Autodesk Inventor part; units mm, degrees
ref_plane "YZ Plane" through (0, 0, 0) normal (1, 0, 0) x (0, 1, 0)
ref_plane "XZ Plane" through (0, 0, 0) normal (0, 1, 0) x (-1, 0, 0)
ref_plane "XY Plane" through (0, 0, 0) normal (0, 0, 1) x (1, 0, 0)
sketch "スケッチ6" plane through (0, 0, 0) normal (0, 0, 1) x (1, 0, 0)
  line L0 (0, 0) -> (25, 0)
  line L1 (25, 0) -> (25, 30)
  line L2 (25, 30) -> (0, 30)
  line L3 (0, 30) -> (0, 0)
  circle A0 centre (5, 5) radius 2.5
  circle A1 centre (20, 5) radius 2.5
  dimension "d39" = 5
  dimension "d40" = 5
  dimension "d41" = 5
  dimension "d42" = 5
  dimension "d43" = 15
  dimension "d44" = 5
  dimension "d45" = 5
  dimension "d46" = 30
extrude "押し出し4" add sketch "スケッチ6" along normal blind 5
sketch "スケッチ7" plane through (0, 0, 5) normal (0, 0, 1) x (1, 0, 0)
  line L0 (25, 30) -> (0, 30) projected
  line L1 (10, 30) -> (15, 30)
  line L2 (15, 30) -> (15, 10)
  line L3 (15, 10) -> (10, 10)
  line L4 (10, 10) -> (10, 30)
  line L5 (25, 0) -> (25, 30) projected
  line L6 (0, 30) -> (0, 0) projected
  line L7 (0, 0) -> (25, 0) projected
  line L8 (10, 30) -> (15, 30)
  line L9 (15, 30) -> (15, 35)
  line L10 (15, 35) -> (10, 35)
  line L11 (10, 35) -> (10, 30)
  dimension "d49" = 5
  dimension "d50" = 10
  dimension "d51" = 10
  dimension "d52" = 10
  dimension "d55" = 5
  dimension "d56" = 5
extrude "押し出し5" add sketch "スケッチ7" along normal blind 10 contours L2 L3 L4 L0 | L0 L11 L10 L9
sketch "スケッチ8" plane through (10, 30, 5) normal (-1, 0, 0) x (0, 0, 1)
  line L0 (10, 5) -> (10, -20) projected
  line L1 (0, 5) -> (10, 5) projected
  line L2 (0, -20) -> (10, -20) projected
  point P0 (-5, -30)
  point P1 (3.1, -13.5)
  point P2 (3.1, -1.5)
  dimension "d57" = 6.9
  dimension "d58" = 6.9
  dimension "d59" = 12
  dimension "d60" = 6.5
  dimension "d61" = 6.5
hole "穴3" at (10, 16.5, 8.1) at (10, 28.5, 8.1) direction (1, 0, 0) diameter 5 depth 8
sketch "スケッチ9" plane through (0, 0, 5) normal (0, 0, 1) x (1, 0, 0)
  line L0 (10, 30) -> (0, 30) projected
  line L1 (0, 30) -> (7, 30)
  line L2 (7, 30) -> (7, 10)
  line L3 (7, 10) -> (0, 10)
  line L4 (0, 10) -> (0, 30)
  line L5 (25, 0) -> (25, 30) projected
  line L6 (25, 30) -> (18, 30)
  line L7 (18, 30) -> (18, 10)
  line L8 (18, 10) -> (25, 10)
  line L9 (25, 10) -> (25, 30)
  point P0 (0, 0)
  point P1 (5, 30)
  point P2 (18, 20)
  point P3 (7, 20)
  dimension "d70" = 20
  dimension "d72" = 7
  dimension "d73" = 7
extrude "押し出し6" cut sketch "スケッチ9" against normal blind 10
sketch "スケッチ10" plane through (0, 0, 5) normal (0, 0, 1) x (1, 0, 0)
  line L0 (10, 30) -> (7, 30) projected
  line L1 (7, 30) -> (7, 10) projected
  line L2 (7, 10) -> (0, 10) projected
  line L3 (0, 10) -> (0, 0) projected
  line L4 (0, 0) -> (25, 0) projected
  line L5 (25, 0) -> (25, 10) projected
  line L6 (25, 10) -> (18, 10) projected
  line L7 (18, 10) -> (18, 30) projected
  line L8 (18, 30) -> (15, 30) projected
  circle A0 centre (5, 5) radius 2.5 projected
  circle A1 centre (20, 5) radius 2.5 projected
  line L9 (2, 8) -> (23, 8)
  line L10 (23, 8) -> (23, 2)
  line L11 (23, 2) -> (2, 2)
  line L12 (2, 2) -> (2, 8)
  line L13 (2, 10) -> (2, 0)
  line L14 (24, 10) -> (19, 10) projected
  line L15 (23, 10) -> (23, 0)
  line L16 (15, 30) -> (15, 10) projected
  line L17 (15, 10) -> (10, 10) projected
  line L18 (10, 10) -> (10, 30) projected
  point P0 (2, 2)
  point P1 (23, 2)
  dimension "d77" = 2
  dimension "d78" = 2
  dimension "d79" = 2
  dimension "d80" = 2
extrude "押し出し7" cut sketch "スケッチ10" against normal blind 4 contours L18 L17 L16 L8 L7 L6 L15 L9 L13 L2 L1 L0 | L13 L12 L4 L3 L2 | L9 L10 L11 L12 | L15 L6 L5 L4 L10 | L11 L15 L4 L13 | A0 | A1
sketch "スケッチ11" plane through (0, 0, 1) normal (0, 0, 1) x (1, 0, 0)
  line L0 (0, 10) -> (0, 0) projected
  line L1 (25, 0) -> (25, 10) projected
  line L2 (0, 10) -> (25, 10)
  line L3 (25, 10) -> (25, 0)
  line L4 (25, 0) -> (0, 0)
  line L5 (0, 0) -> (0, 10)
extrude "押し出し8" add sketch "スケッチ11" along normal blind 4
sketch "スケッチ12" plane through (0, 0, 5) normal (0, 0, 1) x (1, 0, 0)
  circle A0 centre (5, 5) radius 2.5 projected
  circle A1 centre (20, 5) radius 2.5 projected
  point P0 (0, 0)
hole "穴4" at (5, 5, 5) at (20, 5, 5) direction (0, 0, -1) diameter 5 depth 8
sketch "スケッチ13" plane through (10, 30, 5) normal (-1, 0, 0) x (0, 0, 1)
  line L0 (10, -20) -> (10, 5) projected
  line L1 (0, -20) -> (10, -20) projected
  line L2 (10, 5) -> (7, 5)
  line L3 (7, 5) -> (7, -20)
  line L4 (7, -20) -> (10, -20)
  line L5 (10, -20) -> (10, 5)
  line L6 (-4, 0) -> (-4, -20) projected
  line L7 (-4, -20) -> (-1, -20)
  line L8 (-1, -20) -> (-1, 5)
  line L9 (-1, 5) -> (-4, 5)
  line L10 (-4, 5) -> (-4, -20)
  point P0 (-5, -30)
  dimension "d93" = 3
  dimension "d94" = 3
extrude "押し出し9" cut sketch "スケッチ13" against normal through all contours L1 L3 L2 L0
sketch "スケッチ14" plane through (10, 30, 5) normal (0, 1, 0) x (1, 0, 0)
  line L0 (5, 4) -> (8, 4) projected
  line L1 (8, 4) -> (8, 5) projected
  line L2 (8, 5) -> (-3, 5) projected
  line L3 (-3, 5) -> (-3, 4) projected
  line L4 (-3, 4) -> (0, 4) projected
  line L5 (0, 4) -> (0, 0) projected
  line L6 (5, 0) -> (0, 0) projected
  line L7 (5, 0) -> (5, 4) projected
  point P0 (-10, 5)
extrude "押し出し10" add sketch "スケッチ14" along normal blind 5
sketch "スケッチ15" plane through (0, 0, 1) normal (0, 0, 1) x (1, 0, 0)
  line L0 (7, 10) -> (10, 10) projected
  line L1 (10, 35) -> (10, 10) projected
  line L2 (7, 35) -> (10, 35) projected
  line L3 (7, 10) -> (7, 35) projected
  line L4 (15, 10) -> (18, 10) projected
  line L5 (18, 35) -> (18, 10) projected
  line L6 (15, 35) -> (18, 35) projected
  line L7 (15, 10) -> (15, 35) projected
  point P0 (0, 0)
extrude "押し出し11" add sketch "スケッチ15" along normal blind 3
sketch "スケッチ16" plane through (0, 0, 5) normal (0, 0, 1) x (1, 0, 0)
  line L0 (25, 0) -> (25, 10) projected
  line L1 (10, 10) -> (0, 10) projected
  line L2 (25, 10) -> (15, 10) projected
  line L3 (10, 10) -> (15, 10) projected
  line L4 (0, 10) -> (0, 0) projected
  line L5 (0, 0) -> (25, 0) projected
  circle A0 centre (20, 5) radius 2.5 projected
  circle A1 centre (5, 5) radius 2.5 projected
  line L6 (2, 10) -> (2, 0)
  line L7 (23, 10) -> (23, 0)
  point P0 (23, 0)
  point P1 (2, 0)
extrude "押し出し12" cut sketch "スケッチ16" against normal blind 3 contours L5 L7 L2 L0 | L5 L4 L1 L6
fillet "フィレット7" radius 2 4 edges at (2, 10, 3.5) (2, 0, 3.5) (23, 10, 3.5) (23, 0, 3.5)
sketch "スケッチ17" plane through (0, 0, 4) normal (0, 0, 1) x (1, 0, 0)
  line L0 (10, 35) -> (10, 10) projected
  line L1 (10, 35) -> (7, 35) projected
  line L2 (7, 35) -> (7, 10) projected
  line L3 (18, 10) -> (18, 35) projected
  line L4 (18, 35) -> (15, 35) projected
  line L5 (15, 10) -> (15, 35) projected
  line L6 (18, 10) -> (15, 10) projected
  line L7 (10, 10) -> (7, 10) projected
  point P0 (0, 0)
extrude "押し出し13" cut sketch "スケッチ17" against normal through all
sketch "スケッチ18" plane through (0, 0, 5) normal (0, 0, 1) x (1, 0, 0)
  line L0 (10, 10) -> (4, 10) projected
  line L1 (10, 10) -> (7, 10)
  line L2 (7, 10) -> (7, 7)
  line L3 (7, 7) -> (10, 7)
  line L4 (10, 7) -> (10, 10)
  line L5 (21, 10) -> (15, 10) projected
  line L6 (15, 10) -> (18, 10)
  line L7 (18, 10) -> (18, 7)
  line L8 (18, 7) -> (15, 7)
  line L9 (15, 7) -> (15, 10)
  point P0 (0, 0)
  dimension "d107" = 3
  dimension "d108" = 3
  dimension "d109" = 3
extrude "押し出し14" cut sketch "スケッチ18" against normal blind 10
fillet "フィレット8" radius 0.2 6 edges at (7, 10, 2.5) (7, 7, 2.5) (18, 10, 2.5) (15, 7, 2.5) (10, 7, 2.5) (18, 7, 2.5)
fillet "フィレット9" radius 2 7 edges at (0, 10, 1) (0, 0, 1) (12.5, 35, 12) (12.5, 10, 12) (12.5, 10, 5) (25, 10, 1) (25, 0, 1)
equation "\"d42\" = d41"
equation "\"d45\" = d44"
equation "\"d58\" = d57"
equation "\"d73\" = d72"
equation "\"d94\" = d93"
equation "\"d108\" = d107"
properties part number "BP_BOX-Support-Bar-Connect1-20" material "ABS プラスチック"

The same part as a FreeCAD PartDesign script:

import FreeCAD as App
import Part
import Sketcher
from FreeCAD import Vector
Q = App.Units.Quantity


def edges_at(feature, points):
    """Names of the edges that pass closest to the given points."""
    edges = feature.Shape.Edges
    near = lambda p: min(range(len(edges)), key=lambda i: edges[i].distToShape(Part.Vertex(*p))[0])
    return sorted({f"Edge{near(p) + 1}" for p in points})

doc = App.newDocument("Part")
params = doc.addObject("Spreadsheet::Sheet", "Params")
for row, (alias, value) in enumerate([
    ("sketch1_diameter", "5 mm"),
    ("sketch1_height", "30 mm"),
    ("pad1_length", "5 mm"),
    ("sketch2_width", "5 mm"),
    ("sketch2_height", "25 mm"),
    ("pad2_length", "10 mm"),
    ("sketch3_diameter", "5 mm"),
    ("hole_diameter", "5 mm"),
    ("hole_depth", "8 mm"),
    ("sketch4_width", "7 mm"),
    ("sketch4_height", "20 mm"),
    ("pocket1_length", "10 mm"),
    ("sketch5_width", "3 mm"),
    ("sketch5_width2", "7 mm"),
    ("sketch5_width3", "25 mm"),
    ("sketch5_height", "20 mm"),
    ("sketch5_height2", "10 mm"),
    ("pocket2_length", "4 mm"),
    ("sketch6_width", "25 mm"),
    ("sketch6_height", "10 mm"),
    ("pad3_length", "4 mm"),
    ("sketch7_diameter", "5 mm"),
    ("hole2_diameter", "5 mm"),
    ("hole2_depth", "8 mm"),
    ("sketch8_height", "3 mm"),
    ("sketch8_width", "25 mm"),
    ("sketch9_width", "3 mm"),
    ("sketch9_width2", "11 mm"),
    ("sketch9_height", "4 mm"),
    ("sketch9_height2", "1 mm"),
    ("pad4_length", "5 mm"),
    ("sketch10_width", "3 mm"),
    ("sketch10_height", "25 mm"),
    ("pad5_length", "3 mm"),
    ("sketch11_width", "2 mm"),
    ("sketch11_height", "10 mm"),
    ("pocket4_length", "3 mm"),
    ("fillet_radius", "2 mm"),
    ("sketch12_width", "3 mm"),
    ("sketch12_height", "25 mm"),
    ("sketch13_width", "3 mm"),
    ("pocket6_length", "10 mm"),
    ("fillet2_radius", "0.2 mm"),
    ("fillet3_radius", "2 mm"),
], start=1):
    params.set(f"A{row}", alias)
    params.set(f"B{row}", "=" + value)
    params.setAlias(f"B{row}", alias)

body = doc.addObject("PartDesign::Body", "Body")

# Sketch on XY plane
sketch1 = doc.addObject("Sketcher::SketchObject", "Sketch")
body.addObject(sketch1)
sketch1.AttachmentSupport = (doc.XY_Plane, [""])
sketch1.MapMode = "FlatFace"
sketch1.addGeometry(Part.LineSegment(Vector(0, 30, 0), Vector(0, 0, 0)), False)
sketch1.addGeometry(Part.LineSegment(Vector(0, 0, 0), Vector(25, 0, 0)), False)
sketch1.addGeometry(Part.LineSegment(Vector(25, 0, 0), Vector(25, 30, 0)), False)
sketch1.addGeometry(Part.LineSegment(Vector(25, 30, 0), Vector(0, 30, 0)), False)
sketch1.addGeometry(Part.Circle(Vector(5, 5, 0), Vector(0, 0, 1), 2.5), False)
sketch1.addGeometry(Part.Circle(Vector(20, 5, 0), Vector(0, 0, 1), 2.5), False)
sketch1.addConstraint(Sketcher.Constraint("Coincident", 0, 2, 1, 1))
sketch1.addConstraint(Sketcher.Constraint("Coincident", 1, 2, 2, 1))
sketch1.addConstraint(Sketcher.Constraint("Coincident", 2, 2, 3, 1))
sketch1.addConstraint(Sketcher.Constraint("Coincident", 3, 2, 0, 1))
sketch1.addConstraint(Sketcher.Constraint("Vertical", 0))
sketch1.addConstraint(Sketcher.Constraint("Horizontal", 1))
sketch1.addConstraint(Sketcher.Constraint("Vertical", 2))
sketch1.addConstraint(Sketcher.Constraint("Horizontal", 3))
sketch1.addConstraint(Sketcher.Constraint("Coincident", 0, 2, -1, 1))
sketch1.addConstraint(Sketcher.Constraint("Equal", 4, 5))
sketch1.addConstraint(Sketcher.Constraint("Horizontal", 4, 3, 5, 3))
sketch1.addConstraint(Sketcher.Constraint("Diameter", 4, Q("5 mm")))
sketch1.addConstraint(Sketcher.Constraint("DistanceY", 0, 2, 0, 1, Q("30 mm")))
sketch1.addConstraint(Sketcher.Constraint("DistanceX", -1, 1, 4, 3, Q("5 mm")))
sketch1.addConstraint(Sketcher.Constraint("DistanceY", -1, 1, 4, 3, Q("5 mm")))
sketch1.addConstraint(Sketcher.Constraint("DistanceX", 4, 3, 5, 3, Q("15 mm")))
sketch1.addConstraint(Sketcher.Constraint("DistanceX", 5, 3, 1, 2, Q("5 mm")))
sketch1.setExpression("Constraints[11]", "Params.sketch1_diameter")
sketch1.setExpression("Constraints[12]", "Params.sketch1_height")
pad1 = doc.addObject("PartDesign::Pad", "Pad")
body.addObject(pad1)
pad1.Profile = sketch1
pad1.setExpression("Length", "Params.pad1_length")

# Sketch on XY plane
sketch2 = doc.addObject("Sketcher::SketchObject", "Sketch001")
body.addObject(sketch2)
sketch2.AttachmentSupport = (doc.XY_Plane, [""])
sketch2.MapMode = "FlatFace"
sketch2.AttachmentOffset = App.Placement(Vector(0, 0, 5), App.Rotation())
sketch2.addGeometry(Part.LineSegment(Vector(15, 10, 0), Vector(15, 35, 0)), False)
sketch2.addGeometry(Part.LineSegment(Vector(15, 35, 0), Vector(10, 35, 0)), False)
sketch2.addGeometry(Part.LineSegment(Vector(10, 35, 0), Vector(10, 10, 0)), False)
sketch2.addGeometry(Part.LineSegment(Vector(10, 10, 0), Vector(15, 10, 0)), False)
sketch2.addConstraint(Sketcher.Constraint("Coincident", 0, 2, 1, 1))
sketch2.addConstraint(Sketcher.Constraint("Coincident", 1, 2, 2, 1))
sketch2.addConstraint(Sketcher.Constraint("Coincident", 2, 2, 3, 1))
sketch2.addConstraint(Sketcher.Constraint("Coincident", 3, 2, 0, 1))
sketch2.addConstraint(Sketcher.Constraint("Vertical", 0))
sketch2.addConstraint(Sketcher.Constraint("Horizontal", 1))
sketch2.addConstraint(Sketcher.Constraint("Vertical", 2))
sketch2.addConstraint(Sketcher.Constraint("Horizontal", 3))
sketch2.addConstraint(Sketcher.Constraint("DistanceX", 1, 2, 1, 1, Q("5 mm")))
sketch2.addConstraint(Sketcher.Constraint("DistanceX", -1, 1, 1, 2, Q("10 mm")))
sketch2.addConstraint(Sketcher.Constraint("DistanceY", -1, 1, 2, 2, Q("10 mm")))
sketch2.addConstraint(Sketcher.Constraint("DistanceY", 0, 1, 0, 2, Q("25 mm")))
sketch2.setExpression("Constraints[8]", "Params.sketch2_width")
sketch2.setExpression("Constraints[11]", "Params.sketch2_height")
pad2 = doc.addObject("PartDesign::Pad", "Pad001")
body.addObject(pad2)
pad2.Profile = sketch2
pad2.setExpression("Length", "Params.pad2_length")

# Sketch on YZ plane
sketch3 = doc.addObject("Sketcher::SketchObject", "Sketch002")
body.addObject(sketch3)
sketch3.AttachmentSupport = (doc.YZ_Plane, [""])
sketch3.MapMode = "FlatFace"
sketch3.AttachmentOffset = App.Placement(Vector(0, 0, 10), App.Rotation())
sketch3.addGeometry(Part.Circle(Vector(16.5, 8.1, 0), Vector(0, 0, 1), 2.5), False)
sketch3.addGeometry(Part.Circle(Vector(28.5, 8.1, 0), Vector(0, 0, 1), 2.5), False)
sketch3.addConstraint(Sketcher.Constraint("Equal", 0, 1))
sketch3.addConstraint(Sketcher.Constraint("Horizontal", 0, 3, 1, 3))
sketch3.addConstraint(Sketcher.Constraint("Diameter", 0, Q("5 mm")))
sketch3.addConstraint(Sketcher.Constraint("DistanceX", 0, 3, 1, 3, Q("12 mm")))
sketch3.addConstraint(Sketcher.Constraint("DistanceX", -1, 1, 0, 3, Q("16.5 mm")))
sketch3.addConstraint(Sketcher.Constraint("DistanceY", -1, 1, 0, 3, Q("8.1 mm")))
sketch3.setExpression("Constraints[2]", "Params.sketch3_diameter")
doc.recompute()
hole = doc.addObject("PartDesign::Hole", "Hole")
body.addObject(hole)
hole.Profile = sketch3
hole.ThreadType = "None"
hole.setExpression("Diameter", "Params.hole_diameter")
hole.DepthType = "Dimension"
hole.setExpression("Depth", "Params.hole_depth")
hole.DrillPoint = "Flat"
hole.Reversed = True

# Sketch on XY plane
sketch4 = doc.addObject("Sketcher::SketchObject", "Sketch003")
body.addObject(sketch4)
sketch4.AttachmentSupport = (doc.XY_Plane, [""])
sketch4.MapMode = "FlatFace"
sketch4.AttachmentOffset = App.Placement(Vector(0, 0, 5), App.Rotation())
sketch4.addGeometry(Part.LineSegment(Vector(7, 10, 0), Vector(7, 30, 0)), False)
sketch4.addGeometry(Part.LineSegment(Vector(7, 30, 0), Vector(0, 30, 0)), False)
sketch4.addGeometry(Part.LineSegment(Vector(0, 30, 0), Vector(0, 10, 0)), False)
sketch4.addGeometry(Part.LineSegment(Vector(0, 10, 0), Vector(7, 10, 0)), False)
sketch4.addGeometry(Part.LineSegment(Vector(18, 10, 0), Vector(25, 10, 0)), False)
sketch4.addGeometry(Part.LineSegment(Vector(25, 10, 0), Vector(25, 30, 0)), False)
sketch4.addGeometry(Part.LineSegment(Vector(25, 30, 0), Vector(18, 30, 0)), False)
sketch4.addGeometry(Part.LineSegment(Vector(18, 30, 0), Vector(18, 10, 0)), False)
sketch4.addConstraint(Sketcher.Constraint("Coincident", 0, 2, 1, 1))
sketch4.addConstraint(Sketcher.Constraint("Coincident", 1, 2, 2, 1))
sketch4.addConstraint(Sketcher.Constraint("Coincident", 2, 2, 3, 1))
sketch4.addConstraint(Sketcher.Constraint("Coincident", 3, 2, 0, 1))
sketch4.addConstraint(Sketcher.Constraint("Coincident", 4, 2, 5, 1))
sketch4.addConstraint(Sketcher.Constraint("Coincident", 5, 2, 6, 1))
sketch4.addConstraint(Sketcher.Constraint("Coincident", 6, 2, 7, 1))
sketch4.addConstraint(Sketcher.Constraint("Coincident", 7, 2, 4, 1))
sketch4.addConstraint(Sketcher.Constraint("Vertical", 0))
sketch4.addConstraint(Sketcher.Constraint("Horizontal", 1))
sketch4.addConstraint(Sketcher.Constraint("Vertical", 2))
sketch4.addConstraint(Sketcher.Constraint("Horizontal", 3))
sketch4.addConstraint(Sketcher.Constraint("Horizontal", 4))
sketch4.addConstraint(Sketcher.Constraint("Vertical", 5))
sketch4.addConstraint(Sketcher.Constraint("Horizontal", 6))
sketch4.addConstraint(Sketcher.Constraint("Vertical", 7))
sketch4.addConstraint(Sketcher.Constraint("PointOnObject", 1, 2, -2))
sketch4.addConstraint(Sketcher.Constraint("Horizontal", 3, 2, 4, 2))
sketch4.addConstraint(Sketcher.Constraint("Horizontal", 1, 2, 5, 2))
sketch4.addConstraint(Sketcher.Constraint("Equal", 3, 4))
sketch4.addConstraint(Sketcher.Constraint("DistanceX", 1, 2, 1, 1, Q("7 mm")))
sketch4.addConstraint(Sketcher.Constraint("DistanceY", 0, 1, 0, 2, Q("20 mm")))
sketch4.addConstraint(Sketcher.Constraint("DistanceY", -1, 1, 0, 2, Q("30 mm")))
sketch4.addConstraint(Sketcher.Constraint("DistanceX", -1, 1, 4, 2, Q("25 mm")))
sketch4.setExpression("Constraints[20]", "Params.sketch4_width")
sketch4.setExpression("Constraints[21]", "Params.sketch4_height")
pocket1 = doc.addObject("PartDesign::Pocket", "Pocket")
body.addObject(pocket1)
pocket1.Profile = sketch4
pocket1.setExpression("Length", "Params.pocket1_length")

# Sketch on XY plane
sketch5 = doc.addObject("Sketcher::SketchObject", "Sketch004")
body.addObject(sketch5)
sketch5.AttachmentSupport = (doc.XY_Plane, [""])
sketch5.MapMode = "FlatFace"
sketch5.AttachmentOffset = App.Placement(Vector(0, 0, 5), App.Rotation())
sketch5.addGeometry(Part.LineSegment(Vector(10, 10, 0), Vector(10, 30, 0)), False)
sketch5.addGeometry(Part.LineSegment(Vector(10, 30, 0), Vector(7, 30, 0)), False)
sketch5.addGeometry(Part.LineSegment(Vector(7, 30, 0), Vector(7, 10, 0)), False)
sketch5.addGeometry(Part.LineSegment(Vector(7, 10, 0), Vector(0, 10, 0)), False)
sketch5.addGeometry(Part.LineSegment(Vector(0, 10, 0), Vector(0, 0, 0)), False)
sketch5.addGeometry(Part.LineSegment(Vector(0, 0, 0), Vector(25, 0, 0)), False)
sketch5.addGeometry(Part.LineSegment(Vector(25, 0, 0), Vector(25, 10, 0)), False)
sketch5.addGeometry(Part.LineSegment(Vector(25, 10, 0), Vector(18, 10, 0)), False)
sketch5.addGeometry(Part.LineSegment(Vector(18, 10, 0), Vector(18, 30, 0)), False)
sketch5.addGeometry(Part.LineSegment(Vector(18, 30, 0), Vector(15, 30, 0)), False)
sketch5.addGeometry(Part.LineSegment(Vector(15, 30, 0), Vector(15, 10, 0)), False)
sketch5.addGeometry(Part.LineSegment(Vector(15, 10, 0), Vector(10, 10, 0)), False)
sketch5.addConstraint(Sketcher.Constraint("Coincident", 0, 2, 1, 1))
sketch5.addConstraint(Sketcher.Constraint("Coincident", 1, 2, 2, 1))
sketch5.addConstraint(Sketcher.Constraint("Coincident", 2, 2, 3, 1))
sketch5.addConstraint(Sketcher.Constraint("Coincident", 3, 2, 4, 1))
sketch5.addConstraint(Sketcher.Constraint("Coincident", 4, 2, 5, 1))
sketch5.addConstraint(Sketcher.Constraint("Coincident", 5, 2, 6, 1))
sketch5.addConstraint(Sketcher.Constraint("Coincident", 6, 2, 7, 1))
sketch5.addConstraint(Sketcher.Constraint("Coincident", 7, 2, 8, 1))
sketch5.addConstraint(Sketcher.Constraint("Coincident", 8, 2, 9, 1))
sketch5.addConstraint(Sketcher.Constraint("Coincident", 9, 2, 10, 1))
sketch5.addConstraint(Sketcher.Constraint("Coincident", 10, 2, 11, 1))
sketch5.addConstraint(Sketcher.Constraint("Coincident", 11, 2, 0, 1))
sketch5.addConstraint(Sketcher.Constraint("Vertical", 0))
sketch5.addConstraint(Sketcher.Constraint("Horizontal", 1))
sketch5.addConstraint(Sketcher.Constraint("Vertical", 2))
sketch5.addConstraint(Sketcher.Constraint("Horizontal", 3))
sketch5.addConstraint(Sketcher.Constraint("Vertical", 4))
sketch5.addConstraint(Sketcher.Constraint("Horizontal", 5))
sketch5.addConstraint(Sketcher.Constraint("Vertical", 6))
sketch5.addConstraint(Sketcher.Constraint("Horizontal", 7))
sketch5.addConstraint(Sketcher.Constraint("Vertical", 8))
sketch5.addConstraint(Sketcher.Constraint("Horizontal", 9))
sketch5.addConstraint(Sketcher.Constraint("Vertical", 10))
sketch5.addConstraint(Sketcher.Constraint("Horizontal", 11))
sketch5.addConstraint(Sketcher.Constraint("Coincident", 4, 2, -1, 1))
sketch5.addConstraint(Sketcher.Constraint("Horizontal", 3, 2, 6, 2))
sketch5.addConstraint(Sketcher.Constraint("Horizontal", 1, 2, 8, 2))
sketch5.addConstraint(Sketcher.Constraint("Horizontal", 7, 2, 10, 2))
sketch5.addConstraint(Sketcher.Constraint("Equal", 3, 7))
sketch5.addConstraint(Sketcher.Constraint("Equal", 1, 9))
sketch5.addConstraint(Sketcher.Constraint("DistanceX", 1, 2, 1, 1, Q("3 mm")))
sketch5.addConstraint(Sketcher.Constraint("DistanceX", 3, 2, 3, 1, Q("7 mm")))
sketch5.addConstraint(Sketcher.Constraint("DistanceX", 5, 1, 5, 2, Q("25 mm")))
sketch5.addConstraint(Sketcher.Constraint("DistanceY", 0, 1, 0, 2, Q("20 mm")))
sketch5.addConstraint(Sketcher.Constraint("DistanceY", 4, 2, 4, 1, Q("10 mm")))
sketch5.setExpression("Constraints[30]", "Params.sketch5_width")
sketch5.setExpression("Constraints[31]", "Params.sketch5_width2")
sketch5.setExpression("Constraints[32]", "Params.sketch5_width3")
sketch5.setExpression("Constraints[33]", "Params.sketch5_height")
sketch5.setExpression("Constraints[34]", "Params.sketch5_height2")
pocket2 = doc.addObject("PartDesign::Pocket", "Pocket001")
body.addObject(pocket2)
pocket2.Profile = sketch5
pocket2.setExpression("Length", "Params.pocket2_length")

# Sketch on XY plane
sketch6 = doc.addObject("Sketcher::SketchObject", "Sketch005")
body.addObject(sketch6)
sketch6.AttachmentSupport = (doc.XY_Plane, [""])
sketch6.MapMode = "FlatFace"
sketch6.AttachmentOffset = App.Placement(Vector(0, 0, 1), App.Rotation())
sketch6.addGeometry(Part.LineSegment(Vector(25, 10, 0), Vector(0, 10, 0)), False)
sketch6.addGeometry(Part.LineSegment(Vector(0, 10, 0), Vector(0, 0, 0)), False)
sketch6.addGeometry(Part.LineSegment(Vector(0, 0, 0), Vector(25, 0, 0)), False)
sketch6.addGeometry(Part.LineSegment(Vector(25, 0, 0), Vector(25, 10, 0)), False)
sketch6.addConstraint(Sketcher.Constraint("Coincident", 0, 2, 1, 1))
sketch6.addConstraint(Sketcher.Constraint("Coincident", 1, 2, 2, 1))
sketch6.addConstraint(Sketcher.Constraint("Coincident", 2, 2, 3, 1))
sketch6.addConstraint(Sketcher.Constraint("Coincident", 3, 2, 0, 1))
sketch6.addConstraint(Sketcher.Constraint("Horizontal", 0))
sketch6.addConstraint(Sketcher.Constraint("Vertical", 1))
sketch6.addConstraint(Sketcher.Constraint("Horizontal", 2))
sketch6.addConstraint(Sketcher.Constraint("Vertical", 3))
sketch6.addConstraint(Sketcher.Constraint("Coincident", 1, 2, -1, 1))
sketch6.addConstraint(Sketcher.Constraint("DistanceX", 0, 2, 0, 1, Q("25 mm")))
sketch6.addConstraint(Sketcher.Constraint("DistanceY", 1, 2, 1, 1, Q("10 mm")))
sketch6.setExpression("Constraints[9]", "Params.sketch6_width")
sketch6.setExpression("Constraints[10]", "Params.sketch6_height")
pad3 = doc.addObject("PartDesign::Pad", "Pad002")
body.addObject(pad3)
pad3.Profile = sketch6
pad3.setExpression("Length", "Params.pad3_length")

# Sketch on XY plane
sketch7 = doc.addObject("Sketcher::SketchObject", "Sketch006")
body.addObject(sketch7)
sketch7.AttachmentSupport = (doc.XY_Plane, [""])
sketch7.MapMode = "FlatFace"
sketch7.AttachmentOffset = App.Placement(Vector(0, 0, 5), App.Rotation())
sketch7.addGeometry(Part.Circle(Vector(5, 5, 0), Vector(0, 0, 1), 2.5), False)
sketch7.addGeometry(Part.Circle(Vector(20, 5, 0), Vector(0, 0, 1), 2.5), False)
sketch7.addConstraint(Sketcher.Constraint("Equal", 0, 1))
sketch7.addConstraint(Sketcher.Constraint("Horizontal", 0, 3, 1, 3))
sketch7.addConstraint(Sketcher.Constraint("Diameter", 0, Q("5 mm")))
sketch7.addConstraint(Sketcher.Constraint("DistanceX", -1, 1, 0, 3, Q("5 mm")))
sketch7.addConstraint(Sketcher.Constraint("DistanceY", -1, 1, 0, 3, Q("5 mm")))
sketch7.addConstraint(Sketcher.Constraint("DistanceX", -1, 1, 1, 3, Q("20 mm")))
sketch7.setExpression("Constraints[2]", "Params.sketch7_diameter")
doc.recompute()
hole2 = doc.addObject("PartDesign::Hole", "Hole001")
body.addObject(hole2)
hole2.Profile = sketch7
hole2.ThreadType = "None"
hole2.setExpression("Diameter", "Params.hole2_diameter")
hole2.DepthType = "Dimension"
hole2.setExpression("Depth", "Params.hole2_depth")
hole2.DrillPoint = "Flat"

# Sketch on YZ plane
sketch8 = doc.addObject("Sketcher::SketchObject", "Sketch007")
body.addObject(sketch8)
sketch8.AttachmentSupport = (doc.YZ_Plane, [""])
sketch8.MapMode = "FlatFace"
sketch8.AttachmentOffset = App.Placement(Vector(0, 0, 10), App.Rotation())
sketch8.addGeometry(Part.LineSegment(Vector(10, 12, 0), Vector(10, 15, 0)), False)
sketch8.addGeometry(Part.LineSegment(Vector(10, 15, 0), Vector(35, 15, 0)), False)
sketch8.addGeometry(Part.LineSegment(Vector(35, 15, 0), Vector(35, 12, 0)), False)
sketch8.addGeometry(Part.LineSegment(Vector(35, 12, 0), Vector(10, 12, 0)), False)
sketch8.addConstraint(Sketcher.Constraint("Coincident", 0, 2, 1, 1))
sketch8.addConstraint(Sketcher.Constraint("Coincident", 1, 2, 2, 1))
sketch8.addConstraint(Sketcher.Constraint("Coincident", 2, 2, 3, 1))
sketch8.addConstraint(Sketcher.Constraint("Coincident", 3, 2, 0, 1))
sketch8.addConstraint(Sketcher.Constraint("Vertical", 0))
sketch8.addConstraint(Sketcher.Constraint("Horizontal", 1))
sketch8.addConstraint(Sketcher.Constraint("Vertical", 2))
sketch8.addConstraint(Sketcher.Constraint("Horizontal", 3))
sketch8.addConstraint(Sketcher.Constraint("DistanceY", 0, 1, 0, 2, Q("3 mm")))
sketch8.addConstraint(Sketcher.Constraint("DistanceX", 1, 1, 1, 2, Q("25 mm")))
sketch8.addConstraint(Sketcher.Constraint("DistanceX", -1, 1, 0, 2, Q("10 mm")))
sketch8.addConstraint(Sketcher.Constraint("DistanceY", -1, 1, 0, 2, Q("15 mm")))
sketch8.setExpression("Constraints[8]", "Params.sketch8_height")
sketch8.setExpression("Constraints[9]", "Params.sketch8_width")
pocket3 = doc.addObject("PartDesign::Pocket", "Pocket002")
body.addObject(pocket3)
pocket3.Profile = sketch8
pocket3.Type = "ThroughAll"
pocket3.Reversed = True

# Sketch on XZ plane
sketch9 = doc.addObject("Sketcher::SketchObject", "Sketch008")
body.addObject(sketch9)
sketch9.AttachmentSupport = (doc.XZ_Plane, [""])
sketch9.MapMode = "FlatFace"
sketch9.AttachmentOffset = App.Placement(Vector(0, 0, -30), App.Rotation())
sketch9.addGeometry(Part.LineSegment(Vector(15, 5, 0), Vector(15, 1, 0)), False)
sketch9.addGeometry(Part.LineSegment(Vector(15, 1, 0), Vector(18, 1, 0)), False)
sketch9.addGeometry(Part.LineSegment(Vector(18, 1, 0), Vector(18, 0, 0)), False)
sketch9.addGeometry(Part.LineSegment(Vector(18, 0, 0), Vector(7, 0, 0)), False)
sketch9.addGeometry(Part.LineSegment(Vector(7, 0, 0), Vector(7, 1, 0)), False)
sketch9.addGeometry(Part.LineSegment(Vector(7, 1, 0), Vector(10, 1, 0)), False)
sketch9.addGeometry(Part.LineSegment(Vector(10, 1, 0), Vector(10, 5, 0)), False)
sketch9.addGeometry(Part.LineSegment(Vector(10, 5, 0), Vector(15, 5, 0)), False)
sketch9.addConstraint(Sketcher.Constraint("Coincident", 0, 2, 1, 1))
sketch9.addConstraint(Sketcher.Constraint("Coincident", 1, 2, 2, 1))
sketch9.addConstraint(Sketcher.Constraint("Coincident", 2, 2, 3, 1))
sketch9.addConstraint(Sketcher.Constraint("Coincident", 3, 2, 4, 1))
sketch9.addConstraint(Sketcher.Constraint("Coincident", 4, 2, 5, 1))
sketch9.addConstraint(Sketcher.Constraint("Coincident", 5, 2, 6, 1))
sketch9.addConstraint(Sketcher.Constraint("Coincident", 6, 2, 7, 1))
sketch9.addConstraint(Sketcher.Constraint("Coincident", 7, 2, 0, 1))
sketch9.addConstraint(Sketcher.Constraint("Vertical", 0))
sketch9.addConstraint(Sketcher.Constraint("Horizontal", 1))
sketch9.addConstraint(Sketcher.Constraint("Vertical", 2))
sketch9.addConstraint(Sketcher.Constraint("Horizontal", 3))
sketch9.addConstraint(Sketcher.Constraint("Vertical", 4))
sketch9.addConstraint(Sketcher.Constraint("Horizontal", 5))
sketch9.addConstraint(Sketcher.Constraint("Vertical", 6))
sketch9.addConstraint(Sketcher.Constraint("Horizontal", 7))
sketch9.addConstraint(Sketcher.Constraint("PointOnObject", 2, 2, -1))
sketch9.addConstraint(Sketcher.Constraint("Horizontal", 1, 2, 4, 2))
sketch9.addConstraint(Sketcher.Constraint("Equal", 1, 5))
sketch9.addConstraint(Sketcher.Constraint("DistanceX", 1, 1, 1, 2, Q("3 mm")))
sketch9.addConstraint(Sketcher.Constraint("DistanceX", 3, 2, 3, 1, Q("11 mm")))
sketch9.addConstraint(Sketcher.Constraint("DistanceY", 0, 2, 0, 1, Q("4 mm")))
sketch9.addConstraint(Sketcher.Constraint("DistanceY", 2, 2, 2, 1, Q("1 mm")))
sketch9.addConstraint(Sketcher.Constraint("DistanceX", -1, 1, 0, 2, Q("15 mm")))
sketch9.setExpression("Constraints[19]", "Params.sketch9_width")
sketch9.setExpression("Constraints[20]", "Params.sketch9_width2")
sketch9.setExpression("Constraints[21]", "Params.sketch9_height")
sketch9.setExpression("Constraints[22]", "Params.sketch9_height2")
pad4 = doc.addObject("PartDesign::Pad", "Pad003")
body.addObject(pad4)
pad4.Profile = sketch9
pad4.setExpression("Length", "Params.pad4_length")
pad4.Reversed = True

# Sketch on XY plane
sketch10 = doc.addObject("Sketcher::SketchObject", "Sketch009")
body.addObject(sketch10)
sketch10.AttachmentSupport = (doc.XY_Plane, [""])
sketch10.MapMode = "FlatFace"
sketch10.AttachmentOffset = App.Placement(Vector(0, 0, 1), App.Rotation())
sketch10.addGeometry(Part.LineSegment(Vector(7, 35, 0), Vector(7, 10, 0)), False)
sketch10.addGeometry(Part.LineSegment(Vector(7, 10, 0), Vector(10, 10, 0)), False)
sketch10.addGeometry(Part.LineSegment(Vector(10, 10, 0), Vector(10, 35, 0)), False)
sketch10.addGeometry(Part.LineSegment(Vector(10, 35, 0), Vector(7, 35, 0)), False)
sketch10.addGeometry(Part.LineSegment(Vector(15, 35, 0), Vector(15, 10, 0)), False)
sketch10.addGeometry(Part.LineSegment(Vector(15, 10, 0), Vector(18, 10, 0)), False)
sketch10.addGeometry(Part.LineSegment(Vector(18, 10, 0), Vector(18, 35, 0)), False)
sketch10.addGeometry(Part.LineSegment(Vector(18, 35, 0), Vector(15, 35, 0)), False)
sketch10.addConstraint(Sketcher.Constraint("Coincident", 0, 2, 1, 1))
sketch10.addConstraint(Sketcher.Constraint("Coincident", 1, 2, 2, 1))
sketch10.addConstraint(Sketcher.Constraint("Coincident", 2, 2, 3, 1))
sketch10.addConstraint(Sketcher.Constraint("Coincident", 3, 2, 0, 1))
sketch10.addConstraint(Sketcher.Constraint("Coincident", 4, 2, 5, 1))
sketch10.addConstraint(Sketcher.Constraint("Coincident", 5, 2, 6, 1))
sketch10.addConstraint(Sketcher.Constraint("Coincident", 6, 2, 7, 1))
sketch10.addConstraint(Sketcher.Constraint("Coincident", 7, 2, 4, 1))
sketch10.addConstraint(Sketcher.Constraint("Vertical", 0))
sketch10.addConstraint(Sketcher.Constraint("Horizontal", 1))
sketch10.addConstraint(Sketcher.Constraint("Vertical", 2))
sketch10.addConstraint(Sketcher.Constraint("Horizontal", 3))
sketch10.addConstraint(Sketcher.Constraint("Vertical", 4))
sketch10.addConstraint(Sketcher.Constraint("Horizontal", 5))
sketch10.addConstraint(Sketcher.Constraint("Vertical", 6))
sketch10.addConstraint(Sketcher.Constraint("Horizontal", 7))
sketch10.addConstraint(Sketcher.Constraint("Horizontal", 1, 2, 4, 2))
sketch10.addConstraint(Sketcher.Constraint("Horizontal", 3, 2, 6, 2))
sketch10.addConstraint(Sketcher.Constraint("Equal", 3, 5))
sketch10.addConstraint(Sketcher.Constraint("DistanceX", 1, 1, 1, 2, Q("3 mm")))
sketch10.addConstraint(Sketcher.Constraint("DistanceY", 0, 2, 0, 1, Q("25 mm")))
sketch10.addConstraint(Sketcher.Constraint("DistanceX", -1, 1, 0, 2, Q("7 mm")))
sketch10.addConstraint(Sketcher.Constraint("DistanceY", -1, 1, 0, 2, Q("10 mm")))
sketch10.addConstraint(Sketcher.Constraint("DistanceX", -1, 1, 4, 2, Q("15 mm")))
sketch10.setExpression("Constraints[19]", "Params.sketch10_width")
sketch10.setExpression("Constraints[20]", "Params.sketch10_height")
pad5 = doc.addObject("PartDesign::Pad", "Pad004")
body.addObject(pad5)
pad5.Profile = sketch10
pad5.setExpression("Length", "Params.pad5_length")

# Sketch on XY plane
sketch11 = doc.addObject("Sketcher::SketchObject", "Sketch010")
body.addObject(sketch11)
sketch11.AttachmentSupport = (doc.XY_Plane, [""])
sketch11.MapMode = "FlatFace"
sketch11.AttachmentOffset = App.Placement(Vector(0, 0, 5), App.Rotation())
sketch11.addGeometry(Part.LineSegment(Vector(23, 0, 0), Vector(25, 0, 0)), False)
sketch11.addGeometry(Part.LineSegment(Vector(25, 0, 0), Vector(25, 10, 0)), False)
sketch11.addGeometry(Part.LineSegment(Vector(25, 10, 0), Vector(23, 10, 0)), False)
sketch11.addGeometry(Part.LineSegment(Vector(23, 10, 0), Vector(23, 0, 0)), False)
sketch11.addGeometry(Part.LineSegment(Vector(0, 0, 0), Vector(2, 0, 0)), False)
sketch11.addGeometry(Part.LineSegment(Vector(2, 0, 0), Vector(2, 10, 0)), False)
sketch11.addGeometry(Part.LineSegment(Vector(2, 10, 0), Vector(0, 10, 0)), False)
sketch11.addGeometry(Part.LineSegment(Vector(0, 10, 0), Vector(0, 0, 0)), False)
sketch11.addConstraint(Sketcher.Constraint("Coincident", 0, 2, 1, 1))
sketch11.addConstraint(Sketcher.Constraint("Coincident", 1, 2, 2, 1))
sketch11.addConstraint(Sketcher.Constraint("Coincident", 2, 2, 3, 1))
sketch11.addConstraint(Sketcher.Constraint("Coincident", 3, 2, 0, 1))
sketch11.addConstraint(Sketcher.Constraint("Coincident", 4, 2, 5, 1))
sketch11.addConstraint(Sketcher.Constraint("Coincident", 5, 2, 6, 1))
sketch11.addConstraint(Sketcher.Constraint("Coincident", 6, 2, 7, 1))
sketch11.addConstraint(Sketcher.Constraint("Coincident", 7, 2, 4, 1))
sketch11.addConstraint(Sketcher.Constraint("Horizontal", 0))
sketch11.addConstraint(Sketcher.Constraint("Vertical", 1))
sketch11.addConstraint(Sketcher.Constraint("Horizontal", 2))
sketch11.addConstraint(Sketcher.Constraint("Vertical", 3))
sketch11.addConstraint(Sketcher.Constraint("Horizontal", 4))
sketch11.addConstraint(Sketcher.Constraint("Vertical", 5))
sketch11.addConstraint(Sketcher.Constraint("Horizontal", 6))
sketch11.addConstraint(Sketcher.Constraint("Vertical", 7))
sketch11.addConstraint(Sketcher.Constraint("Coincident", 7, 2, -1, 1))
sketch11.addConstraint(Sketcher.Constraint("PointOnObject", 0, 2, -1))
sketch11.addConstraint(Sketcher.Constraint("Horizontal", 2, 2, 5, 2))
sketch11.addConstraint(Sketcher.Constraint("Equal", 2, 4))
sketch11.addConstraint(Sketcher.Constraint("DistanceX", 0, 1, 0, 2, Q("2 mm")))
sketch11.addConstraint(Sketcher.Constraint("DistanceY", 1, 1, 1, 2, Q("10 mm")))
sketch11.addConstraint(Sketcher.Constraint("DistanceX", -1, 1, 0, 2, Q("25 mm")))
sketch11.setExpression("Constraints[20]", "Params.sketch11_width")
sketch11.setExpression("Constraints[21]", "Params.sketch11_height")
pocket4 = doc.addObject("PartDesign::Pocket", "Pocket003")
body.addObject(pocket4)
pocket4.Profile = sketch11
pocket4.setExpression("Length", "Params.pocket4_length")
doc.recompute()

fillet = doc.addObject("PartDesign::Fillet", "Fillet")
body.addObject(fillet)
fillet.Base = (pocket4, edges_at(pocket4, [
    (2, 10, 3.5),
    (2, 0, 3.5),
    (23, 10, 3.5),
    (23, 0, 3.5),
]))
fillet.setExpression("Radius", "Params.fillet_radius")

# Sketch on XY plane
sketch12 = doc.addObject("Sketcher::SketchObject", "Sketch011")
body.addObject(sketch12)
sketch12.AttachmentSupport = (doc.XY_Plane, [""])
sketch12.MapMode = "FlatFace"
sketch12.AttachmentOffset = App.Placement(Vector(0, 0, 4), App.Rotation())
sketch12.addGeometry(Part.LineSegment(Vector(10, 10, 0), Vector(10, 35, 0)), False)
sketch12.addGeometry(Part.LineSegment(Vector(10, 35, 0), Vector(7, 35, 0)), False)
sketch12.addGeometry(Part.LineSegment(Vector(7, 35, 0), Vector(7, 10, 0)), False)
sketch12.addGeometry(Part.LineSegment(Vector(7, 10, 0), Vector(10, 10, 0)), False)
sketch12.addGeometry(Part.LineSegment(Vector(15, 10, 0), Vector(18, 10, 0)), False)
sketch12.addGeometry(Part.LineSegment(Vector(18, 10, 0), Vector(18, 35, 0)), False)
sketch12.addGeometry(Part.LineSegment(Vector(18, 35, 0), Vector(15, 35, 0)), False)
sketch12.addGeometry(Part.LineSegment(Vector(15, 35, 0), Vector(15, 10, 0)), False)
sketch12.addConstraint(Sketcher.Constraint("Coincident", 0, 2, 1, 1))
sketch12.addConstraint(Sketcher.Constraint("Coincident", 1, 2, 2, 1))
sketch12.addConstraint(Sketcher.Constraint("Coincident", 2, 2, 3, 1))
sketch12.addConstraint(Sketcher.Constraint("Coincident", 3, 2, 0, 1))
sketch12.addConstraint(Sketcher.Constraint("Coincident", 4, 2, 5, 1))
sketch12.addConstraint(Sketcher.Constraint("Coincident", 5, 2, 6, 1))
sketch12.addConstraint(Sketcher.Constraint("Coincident", 6, 2, 7, 1))
sketch12.addConstraint(Sketcher.Constraint("Coincident", 7, 2, 4, 1))
sketch12.addConstraint(Sketcher.Constraint("Vertical", 0))
sketch12.addConstraint(Sketcher.Constraint("Horizontal", 1))
sketch12.addConstraint(Sketcher.Constraint("Vertical", 2))
sketch12.addConstraint(Sketcher.Constraint("Horizontal", 3))
sketch12.addConstraint(Sketcher.Constraint("Horizontal", 4))
sketch12.addConstraint(Sketcher.Constraint("Vertical", 5))
sketch12.addConstraint(Sketcher.Constraint("Horizontal", 6))
sketch12.addConstraint(Sketcher.Constraint("Vertical", 7))
sketch12.addConstraint(Sketcher.Constraint("Horizontal", 3, 2, 4, 2))
sketch12.addConstraint(Sketcher.Constraint("Horizontal", 1, 2, 5, 2))
sketch12.addConstraint(Sketcher.Constraint("Equal", 3, 4))
sketch12.addConstraint(Sketcher.Constraint("DistanceX", 1, 2, 1, 1, Q("3 mm")))
sketch12.addConstraint(Sketcher.Constraint("DistanceY", 0, 1, 0, 2, Q("25 mm")))
sketch12.addConstraint(Sketcher.Constraint("DistanceX", -1, 1, 0, 2, Q("10 mm")))
sketch12.addConstraint(Sketcher.Constraint("DistanceY", -1, 1, 0, 2, Q("35 mm")))
sketch12.addConstraint(Sketcher.Constraint("DistanceX", -1, 1, 4, 2, Q("18 mm")))
sketch12.setExpression("Constraints[19]", "Params.sketch12_width")
sketch12.setExpression("Constraints[20]", "Params.sketch12_height")
pocket5 = doc.addObject("PartDesign::Pocket", "Pocket004")
body.addObject(pocket5)
pocket5.Profile = sketch12
pocket5.Type = "ThroughAll"

# Sketch on XY plane
sketch13 = doc.addObject("Sketcher::SketchObject", "Sketch012")
body.addObject(sketch13)
sketch13.AttachmentSupport = (doc.XY_Plane, [""])
sketch13.MapMode = "FlatFace"
sketch13.AttachmentOffset = App.Placement(Vector(0, 0, 5), App.Rotation())
sketch13.addGeometry(Part.LineSegment(Vector(10, 7, 0), Vector(10, 10, 0)), False)
sketch13.addGeometry(Part.LineSegment(Vector(10, 10, 0), Vector(7, 10, 0)), False)
sketch13.addGeometry(Part.LineSegment(Vector(7, 10, 0), Vector(7, 7, 0)), False)
sketch13.addGeometry(Part.LineSegment(Vector(7, 7, 0), Vector(10, 7, 0)), False)
sketch13.addGeometry(Part.LineSegment(Vector(18, 7, 0), Vector(18, 10, 0)), False)
sketch13.addGeometry(Part.LineSegment(Vector(18, 10, 0), Vector(15, 10, 0)), False)
sketch13.addGeometry(Part.LineSegment(Vector(15, 10, 0), Vector(15, 7, 0)), False)
sketch13.addGeometry(Part.LineSegment(Vector(15, 7, 0), Vector(18, 7, 0)), False)
sketch13.addConstraint(Sketcher.Constraint("Coincident", 0, 2, 1, 1))
sketch13.addConstraint(Sketcher.Constraint("Coincident", 1, 2, 2, 1))
sketch13.addConstraint(Sketcher.Constraint("Coincident", 2, 2, 3, 1))
sketch13.addConstraint(Sketcher.Constraint("Coincident", 3, 2, 0, 1))
sketch13.addConstraint(Sketcher.Constraint("Coincident", 4, 2, 5, 1))
sketch13.addConstraint(Sketcher.Constraint("Coincident", 5, 2, 6, 1))
sketch13.addConstraint(Sketcher.Constraint("Coincident", 6, 2, 7, 1))
sketch13.addConstraint(Sketcher.Constraint("Coincident", 7, 2, 4, 1))
sketch13.addConstraint(Sketcher.Constraint("Vertical", 0))
sketch13.addConstraint(Sketcher.Constraint("Horizontal", 1))
sketch13.addConstraint(Sketcher.Constraint("Vertical", 2))
sketch13.addConstraint(Sketcher.Constraint("Horizontal", 3))
sketch13.addConstraint(Sketcher.Constraint("Vertical", 4))
sketch13.addConstraint(Sketcher.Constraint("Horizontal", 5))
sketch13.addConstraint(Sketcher.Constraint("Vertical", 6))
sketch13.addConstraint(Sketcher.Constraint("Horizontal", 7))
sketch13.addConstraint(Sketcher.Constraint("Horizontal", 1, 2, 4, 2))
sketch13.addConstraint(Sketcher.Constraint("Horizontal", 3, 2, 6, 2))
sketch13.addConstraint(Sketcher.Constraint("Equal", 3, 5))
sketch13.addConstraint(Sketcher.Constraint("Equal", 7, 0))
sketch13.addConstraint(Sketcher.Constraint("DistanceX", 1, 2, 1, 1, Q("3 mm")))
sketch13.addConstraint(Sketcher.Constraint("DistanceX", -1, 1, 0, 2, Q("10 mm")))
sketch13.addConstraint(Sketcher.Constraint("DistanceY", -1, 1, 0, 2, Q("10 mm")))
sketch13.addConstraint(Sketcher.Constraint("DistanceX", -1, 1, 4, 2, Q("18 mm")))
sketch13.setExpression("Constraints[20]", "Params.sketch13_width")
pocket6 = doc.addObject("PartDesign::Pocket", "Pocket005")
body.addObject(pocket6)
pocket6.Profile = sketch13
pocket6.setExpression("Length", "Params.pocket6_length")
doc.recompute()

fillet2 = doc.addObject("PartDesign::Fillet", "Fillet001")
body.addObject(fillet2)
fillet2.Base = (pocket6, edges_at(pocket6, [
    (7, 10, 2.5),
    (7, 7, 2.5),
    (18, 10, 2.5),
    (15, 7, 2.5),
    (10, 7, 2.5),
    (18, 7, 2.5),
]))
fillet2.setExpression("Radius", "Params.fillet2_radius")
doc.recompute()

fillet3 = doc.addObject("PartDesign::Fillet", "Fillet002")
body.addObject(fillet3)
fillet3.Base = (fillet2, edges_at(fillet2, [
    (0, 10, 1),
    (0, 0, 1),
    (12.5, 35, 12),
    (12.5, 10, 12),
    (12.5, 10, 5),
    (25, 10, 1),
    (25, 0, 1),
]))
fillet3.setExpression("Radius", "Params.fillet3_radius")

doc.recompute()
